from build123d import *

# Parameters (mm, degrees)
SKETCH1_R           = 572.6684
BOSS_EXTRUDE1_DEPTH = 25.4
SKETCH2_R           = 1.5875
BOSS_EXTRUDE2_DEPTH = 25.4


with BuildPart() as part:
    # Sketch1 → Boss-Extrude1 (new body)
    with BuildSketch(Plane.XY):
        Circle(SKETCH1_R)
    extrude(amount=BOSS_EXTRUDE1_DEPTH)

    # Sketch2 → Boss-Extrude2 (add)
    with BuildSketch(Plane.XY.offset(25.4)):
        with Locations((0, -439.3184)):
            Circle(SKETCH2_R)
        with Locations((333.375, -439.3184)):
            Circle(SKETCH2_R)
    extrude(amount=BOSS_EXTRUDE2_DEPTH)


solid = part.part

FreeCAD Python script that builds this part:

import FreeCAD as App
import Part
import Sketcher
Q = App.Units.Quantity

doc = App.newDocument("Part")
body = doc.addObject("PartDesign::Body", "Body")

# Sketch on XY plane
sketch1 = doc.addObject("Sketcher::SketchObject", "Sketch")
body.addObject(sketch1)
sketch1.AttachmentSupport = (doc.XY_Plane, [""])
sketch1.MapMode = "FlatFace"
sketch1.addGeometry(Part.Circle(App.Vector(0, 0, 0), App.Vector(0, 0, 1), 572.6684), False)
sketch1.addConstraint(Sketcher.Constraint("Coincident", 0, 3, -1, 1))
sketch1.addConstraint(Sketcher.Constraint("Diameter", 0, Q("45.092 in")))
pad1 = doc.addObject("PartDesign::Pad", "Pad")
body.addObject(pad1)
pad1.Profile = sketch1
pad1.Length = Q("1 in")

# Sketch on XY plane
sketch2 = doc.addObject("Sketcher::SketchObject", "Sketch001")
body.addObject(sketch2)
sketch2.AttachmentSupport = (doc.XY_Plane, [""])
sketch2.MapMode = "FlatFace"
sketch2.AttachmentOffset = App.Placement(App.Vector(0, 0, 1 * 25.4), App.Rotation())
sketch2.addGeometry(Part.Circle(App.Vector(0, -439.3184, 0), App.Vector(0, 0, 1), 1.5875), False)
sketch2.addGeometry(Part.Circle(App.Vector(333.375, -439.3184, 0), App.Vector(0, 0, 1), 1.5875), False)
sketch2.addConstraint(Sketcher.Constraint("Equal", 0, 1))
sketch2.addConstraint(Sketcher.Constraint("PointOnObject", 0, 3, -2))
sketch2.addConstraint(Sketcher.Constraint("Horizontal", 0, 3, 1, 3))
sketch2.addConstraint(Sketcher.Constraint("Diameter", 0, Q("0.125 in")))
sketch2.addConstraint(Sketcher.Constraint("DistanceY", 0, 3, -1, 1, Q("17.296 in")))
sketch2.addConstraint(Sketcher.Constraint("DistanceX", -1, 1, 1, 3, Q("13.125 in")))
pad2 = doc.addObject("PartDesign::Pad", "Pad001")
body.addObject(pad2)
pad2.Profile = sketch2
pad2.Length = Q("1 in")

doc.recompute()
